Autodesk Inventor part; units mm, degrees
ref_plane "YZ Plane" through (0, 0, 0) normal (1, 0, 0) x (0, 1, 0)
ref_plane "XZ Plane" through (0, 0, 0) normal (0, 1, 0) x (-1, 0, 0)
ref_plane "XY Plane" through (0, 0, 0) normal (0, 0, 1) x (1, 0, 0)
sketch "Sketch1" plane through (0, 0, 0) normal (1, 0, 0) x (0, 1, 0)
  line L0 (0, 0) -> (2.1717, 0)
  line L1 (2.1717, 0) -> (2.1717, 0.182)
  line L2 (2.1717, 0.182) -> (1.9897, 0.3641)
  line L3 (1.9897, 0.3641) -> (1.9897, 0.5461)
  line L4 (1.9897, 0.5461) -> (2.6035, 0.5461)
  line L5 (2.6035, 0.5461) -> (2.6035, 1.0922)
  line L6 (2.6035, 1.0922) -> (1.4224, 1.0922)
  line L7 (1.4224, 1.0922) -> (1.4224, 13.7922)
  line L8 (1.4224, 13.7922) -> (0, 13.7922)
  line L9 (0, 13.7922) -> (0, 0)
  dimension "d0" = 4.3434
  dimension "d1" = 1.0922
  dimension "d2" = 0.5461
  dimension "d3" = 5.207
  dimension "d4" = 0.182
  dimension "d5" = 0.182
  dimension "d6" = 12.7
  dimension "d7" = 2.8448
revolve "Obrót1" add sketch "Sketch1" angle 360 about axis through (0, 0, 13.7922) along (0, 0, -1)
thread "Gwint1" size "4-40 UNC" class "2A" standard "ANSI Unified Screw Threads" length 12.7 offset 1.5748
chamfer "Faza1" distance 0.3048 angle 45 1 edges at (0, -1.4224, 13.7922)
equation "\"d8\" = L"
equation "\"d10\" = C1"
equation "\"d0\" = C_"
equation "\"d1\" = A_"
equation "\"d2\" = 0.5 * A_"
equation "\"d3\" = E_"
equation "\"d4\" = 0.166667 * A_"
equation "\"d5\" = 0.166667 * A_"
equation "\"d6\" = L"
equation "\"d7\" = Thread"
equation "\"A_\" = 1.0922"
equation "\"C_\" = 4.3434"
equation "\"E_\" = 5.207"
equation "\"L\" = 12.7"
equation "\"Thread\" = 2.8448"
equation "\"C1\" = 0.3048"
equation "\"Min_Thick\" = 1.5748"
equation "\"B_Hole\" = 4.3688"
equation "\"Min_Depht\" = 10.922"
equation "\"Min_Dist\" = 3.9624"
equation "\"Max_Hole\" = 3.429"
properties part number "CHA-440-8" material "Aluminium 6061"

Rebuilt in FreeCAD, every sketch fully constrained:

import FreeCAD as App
import Part
import Sketcher
Q = App.Units.Quantity


def edges_at(feature, points):
    """Names of the edges that pass closest to the given points."""
    edges = feature.Shape.Edges
    near = lambda p: min(range(len(edges)), key=lambda i: edges[i].distToShape(Part.Vertex(*p))[0])
    return sorted({f"Edge{near(p) + 1}" for p in points})

doc = App.newDocument("Part")
params = doc.addObject("Spreadsheet::Sheet", "Params")
for row, (alias, value) in enumerate([
    ("sketch1_height", "0.5 in"),
    ("sketch1_width", "0.056 in"),
    ("revolution_angle", "360 deg"),
    ("chamfer_size", "0.012 in"),
], start=1):
    params.set(f"A{row}", alias)
    params.set(f"B{row}", "=" + value)
    params.setAlias(f"B{row}", alias)

body = doc.addObject("PartDesign::Body", "Body")

sketch1 = doc.addObject("Sketcher::SketchObject", "Sketch")
body.addObject(sketch1)
sketch1.AttachmentSupport = (doc.YZ_Plane, [""])
sketch1.MapMode = "FlatFace"
sketch1.addGeometry([
    Part.LineSegment(App.Vector(0, 13.79, 0), App.Vector(0, 0, 0)),
    Part.LineSegment(App.Vector(0, 0, 0), App.Vector(2.17, 0, 0)),
    Part.LineSegment(App.Vector(2.17, 0, 0), App.Vector(2.17, 0.18, 0)),
    Part.LineSegment(App.Vector(2.17, 0.18, 0), App.Vector(1.99, 0.36, 0)),
    Part.LineSegment(App.Vector(1.99, 0.36, 0), App.Vector(1.99, 0.55, 0)),
    Part.LineSegment(App.Vector(1.99, 0.55, 0), App.Vector(2.6, 0.55, 0)),
    Part.LineSegment(App.Vector(2.6, 0.55, 0), App.Vector(2.6, 1.09, 0)),
    Part.LineSegment(App.Vector(2.6, 1.09, 0), App.Vector(1.42, 1.09, 0)),
    Part.LineSegment(App.Vector(1.42, 1.09, 0), App.Vector(1.42, 13.79, 0)),
    Part.LineSegment(App.Vector(1.42, 13.79, 0), App.Vector(0, 13.79, 0)),
], False)
sketch1.addConstraint([
    Sketcher.Constraint("Coincident", 0, 2, 1, 1),
    Sketcher.Constraint("Coincident", 1, 2, 2, 1),
    Sketcher.Constraint("Coincident", 2, 2, 3, 1),
    Sketcher.Constraint("Coincident", 3, 2, 4, 1),
    Sketcher.Constraint("Coincident", 4, 2, 5, 1),
    Sketcher.Constraint("Coincident", 5, 2, 6, 1),
    Sketcher.Constraint("Coincident", 6, 2, 7, 1),
    Sketcher.Constraint("Coincident", 7, 2, 8, 1),
    Sketcher.Constraint("Coincident", 8, 2, 9, 1),
    Sketcher.Constraint("Coincident", 9, 2, 0, 1),
    Sketcher.Constraint("Vertical", 0),
    Sketcher.Constraint("Horizontal", 1),
    Sketcher.Constraint("Vertical", 2),
    Sketcher.Constraint("Vertical", 4),
    Sketcher.Constraint("Horizontal", 5),
    Sketcher.Constraint("Vertical", 6),
    Sketcher.Constraint("Horizontal", 7),
    Sketcher.Constraint("Vertical", 8),
    Sketcher.Constraint("Horizontal", 9),
    Sketcher.Constraint("Coincident", 0, 2, -1, 1),
    Sketcher.Constraint("Equal", 2, 4),
    Sketcher.Constraint("DistanceY", 8, 1, 8, 2, Q("0.5 in")),
    Sketcher.Constraint("DistanceY", 6, 1, 6, 2, Q("0.0215 in")),
    Sketcher.Constraint("DistanceY", -1, 1, 6, 2, Q("0.043 in")),
    Sketcher.Constraint("DistanceY", 2, 1, 2, 2, Q("0.182 mm")),
    Sketcher.Constraint("DistanceX", 9, 2, 9, 1, Q("0.056 in")),
    Sketcher.Constraint("DistanceX", 3, 2, 2, 2, Q("0.182 mm")),
    Sketcher.Constraint("DistanceX", 1, 1, 1, 2, Q("0.0855 in")),
    Sketcher.Constraint("DistanceX", 7, 2, 7, 1, Q("0.0465 in")),
])
sketch1.setExpression("Constraints[21]", "Params.sketch1_height")
sketch1.setExpression("Constraints[25]", "Params.sketch1_width")
revolution = doc.addObject("PartDesign::Revolution", "Revolution")
body.addObject(revolution)
revolution.Profile = sketch1
revolution.ReferenceAxis = (sketch1, ["V_Axis"])
revolution.setExpression("Angle", "Params.revolution_angle")
doc.recompute()

chamfer = doc.addObject("PartDesign::Chamfer", "Chamfer")
body.addObject(chamfer)
chamfer.Base = (revolution, edges_at(revolution, [(0, -1.422, 13.792)]))
chamfer.setExpression("Size", "Params.chamfer_size")

doc.recompute()
